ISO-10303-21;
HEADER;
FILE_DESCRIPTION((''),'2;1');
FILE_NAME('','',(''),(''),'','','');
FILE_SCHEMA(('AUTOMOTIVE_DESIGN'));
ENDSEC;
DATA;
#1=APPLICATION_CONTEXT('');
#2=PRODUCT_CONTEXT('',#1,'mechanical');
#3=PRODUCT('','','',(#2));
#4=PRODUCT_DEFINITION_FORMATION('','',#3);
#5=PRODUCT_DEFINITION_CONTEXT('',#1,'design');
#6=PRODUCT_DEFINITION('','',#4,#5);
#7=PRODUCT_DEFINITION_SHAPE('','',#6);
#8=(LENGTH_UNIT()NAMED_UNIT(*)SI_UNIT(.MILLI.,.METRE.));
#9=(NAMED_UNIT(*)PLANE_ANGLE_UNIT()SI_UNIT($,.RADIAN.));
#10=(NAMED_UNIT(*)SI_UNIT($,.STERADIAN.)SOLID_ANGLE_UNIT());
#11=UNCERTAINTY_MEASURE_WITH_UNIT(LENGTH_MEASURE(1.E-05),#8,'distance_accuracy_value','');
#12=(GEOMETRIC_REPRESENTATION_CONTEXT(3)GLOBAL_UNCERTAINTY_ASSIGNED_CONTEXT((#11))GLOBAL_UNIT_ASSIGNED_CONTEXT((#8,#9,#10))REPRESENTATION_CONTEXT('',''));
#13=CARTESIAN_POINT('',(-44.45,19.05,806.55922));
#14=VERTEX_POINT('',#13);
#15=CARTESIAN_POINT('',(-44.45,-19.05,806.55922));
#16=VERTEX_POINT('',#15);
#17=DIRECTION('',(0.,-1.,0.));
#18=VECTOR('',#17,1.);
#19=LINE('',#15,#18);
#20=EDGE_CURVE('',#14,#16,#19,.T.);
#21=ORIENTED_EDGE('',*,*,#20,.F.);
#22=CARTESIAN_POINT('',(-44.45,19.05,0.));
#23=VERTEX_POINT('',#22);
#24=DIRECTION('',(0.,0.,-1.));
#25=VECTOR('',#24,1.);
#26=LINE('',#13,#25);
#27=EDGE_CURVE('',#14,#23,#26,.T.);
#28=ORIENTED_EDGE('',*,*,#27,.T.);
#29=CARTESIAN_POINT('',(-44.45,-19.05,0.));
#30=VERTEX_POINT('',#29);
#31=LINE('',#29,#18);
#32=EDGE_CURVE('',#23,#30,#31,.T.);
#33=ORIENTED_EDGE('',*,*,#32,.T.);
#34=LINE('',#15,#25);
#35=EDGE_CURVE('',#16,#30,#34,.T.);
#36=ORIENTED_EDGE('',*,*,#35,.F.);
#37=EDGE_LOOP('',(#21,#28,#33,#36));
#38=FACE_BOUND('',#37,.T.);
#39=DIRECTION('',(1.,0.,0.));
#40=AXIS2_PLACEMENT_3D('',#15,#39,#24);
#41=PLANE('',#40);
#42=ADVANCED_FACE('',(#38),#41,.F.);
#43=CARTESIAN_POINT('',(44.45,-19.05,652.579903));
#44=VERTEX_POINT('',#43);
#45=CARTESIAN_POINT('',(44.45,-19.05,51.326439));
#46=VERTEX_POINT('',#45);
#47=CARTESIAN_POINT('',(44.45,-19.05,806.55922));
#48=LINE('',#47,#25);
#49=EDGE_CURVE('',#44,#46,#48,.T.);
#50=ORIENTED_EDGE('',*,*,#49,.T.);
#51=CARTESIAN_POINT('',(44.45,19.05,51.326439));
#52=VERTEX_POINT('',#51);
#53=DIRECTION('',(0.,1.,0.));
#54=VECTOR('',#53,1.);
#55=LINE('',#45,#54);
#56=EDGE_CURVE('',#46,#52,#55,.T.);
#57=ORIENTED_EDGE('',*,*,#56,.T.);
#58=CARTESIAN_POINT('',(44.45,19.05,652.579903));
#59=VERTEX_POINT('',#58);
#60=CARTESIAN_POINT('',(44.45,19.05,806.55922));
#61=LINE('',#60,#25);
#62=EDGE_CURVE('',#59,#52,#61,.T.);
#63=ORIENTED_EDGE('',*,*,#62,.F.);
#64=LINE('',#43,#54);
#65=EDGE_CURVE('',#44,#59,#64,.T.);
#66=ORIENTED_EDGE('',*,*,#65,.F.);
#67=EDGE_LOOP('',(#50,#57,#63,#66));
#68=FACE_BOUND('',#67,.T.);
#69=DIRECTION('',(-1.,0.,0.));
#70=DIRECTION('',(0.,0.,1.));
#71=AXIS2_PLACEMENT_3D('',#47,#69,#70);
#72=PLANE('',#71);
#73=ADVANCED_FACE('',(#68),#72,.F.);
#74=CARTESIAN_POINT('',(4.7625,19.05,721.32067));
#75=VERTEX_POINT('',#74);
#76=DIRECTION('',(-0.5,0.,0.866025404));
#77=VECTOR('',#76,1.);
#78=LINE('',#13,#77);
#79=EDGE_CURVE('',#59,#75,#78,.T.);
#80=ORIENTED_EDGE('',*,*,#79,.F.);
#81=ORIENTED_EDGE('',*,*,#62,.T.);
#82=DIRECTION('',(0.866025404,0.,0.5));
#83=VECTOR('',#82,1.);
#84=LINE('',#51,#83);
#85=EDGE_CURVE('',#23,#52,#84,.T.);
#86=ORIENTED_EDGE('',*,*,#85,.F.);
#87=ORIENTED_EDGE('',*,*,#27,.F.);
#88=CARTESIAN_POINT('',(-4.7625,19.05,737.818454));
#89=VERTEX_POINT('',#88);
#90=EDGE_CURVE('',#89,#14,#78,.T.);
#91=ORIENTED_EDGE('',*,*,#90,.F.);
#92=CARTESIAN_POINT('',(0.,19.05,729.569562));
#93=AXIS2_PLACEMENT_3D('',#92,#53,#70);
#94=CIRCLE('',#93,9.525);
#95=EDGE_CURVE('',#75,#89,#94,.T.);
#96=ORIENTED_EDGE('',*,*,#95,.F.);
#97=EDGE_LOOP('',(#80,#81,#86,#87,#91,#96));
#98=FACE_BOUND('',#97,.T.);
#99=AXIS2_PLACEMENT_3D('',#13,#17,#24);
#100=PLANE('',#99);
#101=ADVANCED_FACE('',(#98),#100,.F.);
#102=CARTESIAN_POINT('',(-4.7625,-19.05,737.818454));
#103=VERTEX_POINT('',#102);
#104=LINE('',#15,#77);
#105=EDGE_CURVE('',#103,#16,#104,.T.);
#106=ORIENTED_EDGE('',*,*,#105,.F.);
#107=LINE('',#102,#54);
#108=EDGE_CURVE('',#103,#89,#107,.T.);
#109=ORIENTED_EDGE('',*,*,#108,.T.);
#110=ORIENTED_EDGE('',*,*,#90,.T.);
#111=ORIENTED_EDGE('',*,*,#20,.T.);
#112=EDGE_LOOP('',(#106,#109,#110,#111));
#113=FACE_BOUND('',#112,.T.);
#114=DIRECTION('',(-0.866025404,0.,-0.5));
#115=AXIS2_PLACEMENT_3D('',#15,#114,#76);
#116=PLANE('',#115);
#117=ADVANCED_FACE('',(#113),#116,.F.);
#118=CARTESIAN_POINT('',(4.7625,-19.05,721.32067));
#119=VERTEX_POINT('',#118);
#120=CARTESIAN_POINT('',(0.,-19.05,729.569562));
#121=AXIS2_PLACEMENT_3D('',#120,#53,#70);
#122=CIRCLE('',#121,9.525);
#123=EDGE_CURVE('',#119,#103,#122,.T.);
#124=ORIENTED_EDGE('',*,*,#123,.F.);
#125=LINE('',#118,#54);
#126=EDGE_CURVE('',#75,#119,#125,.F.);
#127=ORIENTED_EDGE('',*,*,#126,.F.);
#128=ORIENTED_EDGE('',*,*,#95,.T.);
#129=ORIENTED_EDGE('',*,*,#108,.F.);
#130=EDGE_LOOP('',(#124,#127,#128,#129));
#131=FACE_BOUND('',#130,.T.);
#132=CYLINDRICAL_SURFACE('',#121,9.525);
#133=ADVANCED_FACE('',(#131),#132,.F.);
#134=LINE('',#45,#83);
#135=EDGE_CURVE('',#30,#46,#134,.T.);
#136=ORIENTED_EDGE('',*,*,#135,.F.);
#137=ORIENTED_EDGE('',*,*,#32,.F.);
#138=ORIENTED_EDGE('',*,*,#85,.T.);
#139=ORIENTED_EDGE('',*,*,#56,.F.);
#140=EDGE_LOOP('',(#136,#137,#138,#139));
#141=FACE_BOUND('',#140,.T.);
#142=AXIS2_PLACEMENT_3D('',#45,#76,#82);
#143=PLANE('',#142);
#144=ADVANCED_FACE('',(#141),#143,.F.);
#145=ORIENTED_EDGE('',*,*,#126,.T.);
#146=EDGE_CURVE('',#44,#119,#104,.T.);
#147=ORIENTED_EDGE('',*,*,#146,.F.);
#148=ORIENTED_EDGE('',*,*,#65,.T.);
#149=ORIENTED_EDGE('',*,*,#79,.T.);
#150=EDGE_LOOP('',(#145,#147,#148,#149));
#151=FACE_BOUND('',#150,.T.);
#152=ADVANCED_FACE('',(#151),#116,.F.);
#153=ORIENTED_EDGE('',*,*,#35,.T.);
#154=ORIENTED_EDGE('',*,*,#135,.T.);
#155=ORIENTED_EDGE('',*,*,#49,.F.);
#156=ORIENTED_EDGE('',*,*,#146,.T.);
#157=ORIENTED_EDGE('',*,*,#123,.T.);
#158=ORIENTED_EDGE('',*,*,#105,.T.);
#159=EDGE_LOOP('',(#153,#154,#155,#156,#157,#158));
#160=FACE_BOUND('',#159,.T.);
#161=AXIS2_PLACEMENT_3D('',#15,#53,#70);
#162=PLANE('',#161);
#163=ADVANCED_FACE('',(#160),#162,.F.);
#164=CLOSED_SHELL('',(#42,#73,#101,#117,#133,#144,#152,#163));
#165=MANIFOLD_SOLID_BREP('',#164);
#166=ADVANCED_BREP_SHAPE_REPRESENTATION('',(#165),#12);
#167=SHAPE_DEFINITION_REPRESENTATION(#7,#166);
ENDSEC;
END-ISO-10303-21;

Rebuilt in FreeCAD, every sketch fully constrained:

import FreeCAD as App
import Part
import Sketcher
Q = App.Units.Quantity


def add_polygon(sketch, points):
    """Adds a closed chain of lines whose ends are joined by coincident constraints."""
    first, n = sketch.GeometryCount, len(points)
    for a, b in zip(points, points[1:] + points[:1]):
        sketch.addGeometry(Part.LineSegment(App.Vector(*a, 0), App.Vector(*b, 0)), False)
    for i in range(n):
        sketch.addConstraint(Sketcher.Constraint("Coincident", first + i, 2, first + (i + 1) % n, 1))

doc = App.newDocument("Part")
body = doc.addObject("PartDesign::Body", "Body")

sketch1 = doc.addObject("Sketcher::SketchObject", "Sketch")
body.addObject(sketch1)
sketch1.AttachmentSupport = (doc.XY_Plane, [""])
sketch1.MapMode = "FlatFace"
add_polygon(sketch1, [(-44.45, 19.05), (-44.45, -19.05), (44.45, -19.05), (44.45, 19.05)])
sketch1.addConstraint([
    Sketcher.Constraint("Vertical", 0),
    Sketcher.Constraint("Horizontal", 1),
    Sketcher.Constraint("Vertical", 2),
    Sketcher.Constraint("Horizontal", 3),
    Sketcher.Constraint("Symmetric", 0, 2, 2, 2, -1, 1),
    Sketcher.Constraint("DistanceX", 1, 1, 1, 2, Q("3.5 in")),
    Sketcher.Constraint("DistanceY", 0, 2, 0, 1, Q("1.5 in")),
])
pad1 = doc.addObject("PartDesign::Pad", "Pad")
body.addObject(pad1)
pad1.Profile = sketch1
pad1.Length = Q("31.7543 in")

sketch2 = doc.addObject("Sketcher::SketchObject", "Sketch001")
body.addObject(sketch2)
sketch2.AttachmentSupport = (doc.XZ_Plane, [""])
sketch2.MapMode = "FlatFace"
sketch2.AttachmentOffset = App.Placement(App.Vector(0, 0, -0.75 * 25.4), App.Rotation())
add_polygon(sketch2, [(44.45, 0), (-44.45, 0), (44.45, 51.326439)])
add_polygon(sketch2, [(44.45, 652.579903), (-44.45, 806.55922), (44.45, 806.55922)])
sketch2.addConstraint([
    Sketcher.Constraint("Horizontal", 0),
    Sketcher.Constraint("Vertical", 2),
    Sketcher.Constraint("Horizontal", 4),
    Sketcher.Constraint("Vertical", 5),
    Sketcher.Constraint("Symmetric", 0, 2, 2, 2, -1, 1),
    Sketcher.Constraint("Perpendicular", 1, 3),
    Sketcher.Constraint("Vertical", 0, 2, 3, 2),
    Sketcher.Constraint("Vertical", 2, 2, 4, 2),
    Sketcher.Constraint("Distance", 3, Q("7 in")),
    Sketcher.Constraint("DistanceX", 0, 2, 0, 1, Q("3.5 in")),
    Sketcher.Constraint("DistanceY", -1, 1, 3, 2, Q("31.7543 in")),
])
pocket1 = doc.addObject("PartDesign::Pocket", "Pocket")
body.addObject(pocket1)
pocket1.Profile = sketch2
pocket1.Type = "ThroughAll"
pocket1.Reversed = True

sketch3 = doc.addObject("Sketcher::SketchObject", "Sketch002")
body.addObject(sketch3)
sketch3.AttachmentSupport = (doc.XZ_Plane, [""])
sketch3.MapMode = "FlatFace"
sketch3.AttachmentOffset = App.Placement(App.Vector(0, 0, -0.75 * 25.4), App.Rotation())
sketch3.addGeometry(Part.Circle(App.Vector(0, 729.569562, 0), App.Vector(0, 0, 1), 9.525), False)
sketch3.addConstraint([
    Sketcher.Constraint("PointOnObject", 0, 3, -2),
    Sketcher.Constraint("Diameter", 0, Q("0.75 in")),
    Sketcher.Constraint("DistanceY", -1, 1, 0, 3, Q("729.569562 mm")),
])
pocket2 = doc.addObject("PartDesign::Pocket", "Pocket001")
body.addObject(pocket2)
pocket2.Profile = sketch3
pocket2.Type = "ThroughAll"
pocket2.Reversed = True

doc.recompute()
